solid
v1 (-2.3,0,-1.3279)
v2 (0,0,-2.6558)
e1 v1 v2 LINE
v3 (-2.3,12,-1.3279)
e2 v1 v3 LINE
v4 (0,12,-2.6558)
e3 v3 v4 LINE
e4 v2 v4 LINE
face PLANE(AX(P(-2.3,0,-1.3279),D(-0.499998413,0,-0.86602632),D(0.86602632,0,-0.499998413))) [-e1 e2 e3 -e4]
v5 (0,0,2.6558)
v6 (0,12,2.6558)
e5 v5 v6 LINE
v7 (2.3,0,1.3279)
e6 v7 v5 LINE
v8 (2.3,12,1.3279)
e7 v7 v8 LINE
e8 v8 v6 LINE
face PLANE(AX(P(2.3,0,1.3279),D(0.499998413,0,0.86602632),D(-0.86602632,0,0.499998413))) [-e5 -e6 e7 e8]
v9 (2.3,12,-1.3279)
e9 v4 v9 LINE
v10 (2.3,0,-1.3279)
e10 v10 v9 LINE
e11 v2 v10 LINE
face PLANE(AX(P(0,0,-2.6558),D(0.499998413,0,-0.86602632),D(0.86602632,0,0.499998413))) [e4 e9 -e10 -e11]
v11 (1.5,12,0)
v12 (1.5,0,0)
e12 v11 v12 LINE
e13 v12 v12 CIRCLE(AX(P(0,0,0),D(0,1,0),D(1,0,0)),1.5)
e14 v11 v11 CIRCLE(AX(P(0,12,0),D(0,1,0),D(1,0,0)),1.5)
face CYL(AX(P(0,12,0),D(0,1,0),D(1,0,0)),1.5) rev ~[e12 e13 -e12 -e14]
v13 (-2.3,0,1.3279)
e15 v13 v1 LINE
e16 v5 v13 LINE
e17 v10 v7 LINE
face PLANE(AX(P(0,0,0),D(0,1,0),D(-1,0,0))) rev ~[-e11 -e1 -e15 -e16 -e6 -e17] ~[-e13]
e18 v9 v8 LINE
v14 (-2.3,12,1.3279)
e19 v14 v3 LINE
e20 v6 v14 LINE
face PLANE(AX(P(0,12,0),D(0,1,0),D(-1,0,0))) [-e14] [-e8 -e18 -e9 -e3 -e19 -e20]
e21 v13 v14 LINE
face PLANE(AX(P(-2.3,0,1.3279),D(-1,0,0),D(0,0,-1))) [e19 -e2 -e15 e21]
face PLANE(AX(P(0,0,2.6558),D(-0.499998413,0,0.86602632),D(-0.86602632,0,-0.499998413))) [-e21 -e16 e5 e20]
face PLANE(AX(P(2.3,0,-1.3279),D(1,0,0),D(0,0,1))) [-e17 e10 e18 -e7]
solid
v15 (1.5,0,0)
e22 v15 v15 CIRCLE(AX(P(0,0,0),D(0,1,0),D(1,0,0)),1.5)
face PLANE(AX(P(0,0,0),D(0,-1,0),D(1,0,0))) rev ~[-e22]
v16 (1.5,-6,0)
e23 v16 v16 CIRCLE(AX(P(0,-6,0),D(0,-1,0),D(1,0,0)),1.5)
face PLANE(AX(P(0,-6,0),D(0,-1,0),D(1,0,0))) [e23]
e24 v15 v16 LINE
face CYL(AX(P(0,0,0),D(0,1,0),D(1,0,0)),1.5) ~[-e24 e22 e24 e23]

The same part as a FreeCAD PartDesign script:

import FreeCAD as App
import Part
import Sketcher
from FreeCAD import Vector
Q = App.Units.Quantity

doc = App.newDocument("Part")
body = doc.addObject("PartDesign::Body", "Body")
body.AllowCompound = True

# Sketch on XZ plane
sketch1 = body.newObject("Sketcher::SketchObject", "Sketch")
sketch1.AttachmentSupport = (doc.getObject("XZ_Plane"), [""])
sketch1.MapMode = "FlatFace"
sketch1.addGeometry([
    Part.LineSegment(Vector(2.3, -1.3279, 0), Vector(0, -2.6558, 0)),  # 0
    Part.LineSegment(Vector(0, -2.6558, 0), Vector(-2.3, -1.3279, 0)),  # 1
    Part.LineSegment(Vector(-2.3, -1.3279, 0), Vector(-2.3, 1.3279, 0)),  # 2
    Part.LineSegment(Vector(-2.3, 1.3279, 0), Vector(0, 2.6558, 0)),  # 3
    Part.LineSegment(Vector(0, 2.6558, 0), Vector(2.3, 1.3279, 0)),  # 4
    Part.LineSegment(Vector(2.3, 1.3279, 0), Vector(2.3, -1.3279, 0)),  # 5
], False)
sketch1.addConstraint([
    Sketcher.Constraint("Coincident", 0, 2, 1, 1),
    Sketcher.Constraint("Coincident", 1, 2, 2, 1),
    Sketcher.Constraint("Coincident", 2, 2, 3, 1),
    Sketcher.Constraint("Coincident", 3, 2, 4, 1),
    Sketcher.Constraint("Coincident", 4, 2, 5, 1),
    Sketcher.Constraint("Coincident", 5, 2, 0, 1),
    Sketcher.Constraint("Vertical", 2),
    Sketcher.Constraint("Vertical", 5),
    Sketcher.Constraint("Symmetric", 0, 2, 3, 2, -1, 1),
    Sketcher.Constraint("Symmetric", 1, 2, 4, 2, -1, 1),
    Sketcher.Constraint("PointOnObject", 0, 2, -2),
    Sketcher.Constraint("Parallel", 0, 3),
    Sketcher.Constraint("Horizontal", 2, 2, 4, 2),
    Sketcher.Constraint("DistanceX", 2, 2, 4, 2, Q("4.6 mm")),
    Sketcher.Constraint("Angle", 0, Q("-150 deg")),
    Sketcher.Constraint("DistanceY", 2, 1, 2, 2, Q("2.6558 mm")),
])
pad1 = body.newObject("PartDesign::Pad", "Pad")
pad1.Profile = sketch1
pad1.Length = 12
pad1.Reversed = True

# Sketch on XZ plane
sketch2 = body.newObject("Sketcher::SketchObject", "Sketch001")
sketch2.AttachmentSupport = (doc.getObject("XZ_Plane"), [""])
sketch2.MapMode = "FlatFace"
sketch2.AttachmentOffset = App.Placement(Vector(0, 0, -12), App.Rotation())
sketch2.addGeometry(Part.Circle(Vector(0, 0, 0), Vector(0, 0, 1), 1.5), False)
sketch2.addConstraint([
    Sketcher.Constraint("Coincident", 0, 3, -1, 1),
    Sketcher.Constraint("Diameter", 0, Q("3 mm")),
])
pocket1 = body.newObject("PartDesign::Pocket", "Pocket")
pocket1.Profile = sketch2
pocket1.Length = 15
pocket1.Reversed = True

# Sketch on XZ plane
sketch3 = body.newObject("Sketcher::SketchObject", "Sketch002")
sketch3.AttachmentSupport = (doc.getObject("XZ_Plane"), [""])
sketch3.MapMode = "FlatFace"
sketch3.addGeometry(Part.Circle(Vector(0, 0, 0), Vector(0, 0, 1), 1.5), False)
sketch3.addConstraint([
    Sketcher.Constraint("Coincident", 0, 3, -1, 1),
    Sketcher.Constraint("Diameter", 0, Q("3 mm")),
])
pad2 = body.newObject("PartDesign::Pad", "Pad001")
pad2.Profile = sketch3
pad2.Length = 6

doc.recompute()
